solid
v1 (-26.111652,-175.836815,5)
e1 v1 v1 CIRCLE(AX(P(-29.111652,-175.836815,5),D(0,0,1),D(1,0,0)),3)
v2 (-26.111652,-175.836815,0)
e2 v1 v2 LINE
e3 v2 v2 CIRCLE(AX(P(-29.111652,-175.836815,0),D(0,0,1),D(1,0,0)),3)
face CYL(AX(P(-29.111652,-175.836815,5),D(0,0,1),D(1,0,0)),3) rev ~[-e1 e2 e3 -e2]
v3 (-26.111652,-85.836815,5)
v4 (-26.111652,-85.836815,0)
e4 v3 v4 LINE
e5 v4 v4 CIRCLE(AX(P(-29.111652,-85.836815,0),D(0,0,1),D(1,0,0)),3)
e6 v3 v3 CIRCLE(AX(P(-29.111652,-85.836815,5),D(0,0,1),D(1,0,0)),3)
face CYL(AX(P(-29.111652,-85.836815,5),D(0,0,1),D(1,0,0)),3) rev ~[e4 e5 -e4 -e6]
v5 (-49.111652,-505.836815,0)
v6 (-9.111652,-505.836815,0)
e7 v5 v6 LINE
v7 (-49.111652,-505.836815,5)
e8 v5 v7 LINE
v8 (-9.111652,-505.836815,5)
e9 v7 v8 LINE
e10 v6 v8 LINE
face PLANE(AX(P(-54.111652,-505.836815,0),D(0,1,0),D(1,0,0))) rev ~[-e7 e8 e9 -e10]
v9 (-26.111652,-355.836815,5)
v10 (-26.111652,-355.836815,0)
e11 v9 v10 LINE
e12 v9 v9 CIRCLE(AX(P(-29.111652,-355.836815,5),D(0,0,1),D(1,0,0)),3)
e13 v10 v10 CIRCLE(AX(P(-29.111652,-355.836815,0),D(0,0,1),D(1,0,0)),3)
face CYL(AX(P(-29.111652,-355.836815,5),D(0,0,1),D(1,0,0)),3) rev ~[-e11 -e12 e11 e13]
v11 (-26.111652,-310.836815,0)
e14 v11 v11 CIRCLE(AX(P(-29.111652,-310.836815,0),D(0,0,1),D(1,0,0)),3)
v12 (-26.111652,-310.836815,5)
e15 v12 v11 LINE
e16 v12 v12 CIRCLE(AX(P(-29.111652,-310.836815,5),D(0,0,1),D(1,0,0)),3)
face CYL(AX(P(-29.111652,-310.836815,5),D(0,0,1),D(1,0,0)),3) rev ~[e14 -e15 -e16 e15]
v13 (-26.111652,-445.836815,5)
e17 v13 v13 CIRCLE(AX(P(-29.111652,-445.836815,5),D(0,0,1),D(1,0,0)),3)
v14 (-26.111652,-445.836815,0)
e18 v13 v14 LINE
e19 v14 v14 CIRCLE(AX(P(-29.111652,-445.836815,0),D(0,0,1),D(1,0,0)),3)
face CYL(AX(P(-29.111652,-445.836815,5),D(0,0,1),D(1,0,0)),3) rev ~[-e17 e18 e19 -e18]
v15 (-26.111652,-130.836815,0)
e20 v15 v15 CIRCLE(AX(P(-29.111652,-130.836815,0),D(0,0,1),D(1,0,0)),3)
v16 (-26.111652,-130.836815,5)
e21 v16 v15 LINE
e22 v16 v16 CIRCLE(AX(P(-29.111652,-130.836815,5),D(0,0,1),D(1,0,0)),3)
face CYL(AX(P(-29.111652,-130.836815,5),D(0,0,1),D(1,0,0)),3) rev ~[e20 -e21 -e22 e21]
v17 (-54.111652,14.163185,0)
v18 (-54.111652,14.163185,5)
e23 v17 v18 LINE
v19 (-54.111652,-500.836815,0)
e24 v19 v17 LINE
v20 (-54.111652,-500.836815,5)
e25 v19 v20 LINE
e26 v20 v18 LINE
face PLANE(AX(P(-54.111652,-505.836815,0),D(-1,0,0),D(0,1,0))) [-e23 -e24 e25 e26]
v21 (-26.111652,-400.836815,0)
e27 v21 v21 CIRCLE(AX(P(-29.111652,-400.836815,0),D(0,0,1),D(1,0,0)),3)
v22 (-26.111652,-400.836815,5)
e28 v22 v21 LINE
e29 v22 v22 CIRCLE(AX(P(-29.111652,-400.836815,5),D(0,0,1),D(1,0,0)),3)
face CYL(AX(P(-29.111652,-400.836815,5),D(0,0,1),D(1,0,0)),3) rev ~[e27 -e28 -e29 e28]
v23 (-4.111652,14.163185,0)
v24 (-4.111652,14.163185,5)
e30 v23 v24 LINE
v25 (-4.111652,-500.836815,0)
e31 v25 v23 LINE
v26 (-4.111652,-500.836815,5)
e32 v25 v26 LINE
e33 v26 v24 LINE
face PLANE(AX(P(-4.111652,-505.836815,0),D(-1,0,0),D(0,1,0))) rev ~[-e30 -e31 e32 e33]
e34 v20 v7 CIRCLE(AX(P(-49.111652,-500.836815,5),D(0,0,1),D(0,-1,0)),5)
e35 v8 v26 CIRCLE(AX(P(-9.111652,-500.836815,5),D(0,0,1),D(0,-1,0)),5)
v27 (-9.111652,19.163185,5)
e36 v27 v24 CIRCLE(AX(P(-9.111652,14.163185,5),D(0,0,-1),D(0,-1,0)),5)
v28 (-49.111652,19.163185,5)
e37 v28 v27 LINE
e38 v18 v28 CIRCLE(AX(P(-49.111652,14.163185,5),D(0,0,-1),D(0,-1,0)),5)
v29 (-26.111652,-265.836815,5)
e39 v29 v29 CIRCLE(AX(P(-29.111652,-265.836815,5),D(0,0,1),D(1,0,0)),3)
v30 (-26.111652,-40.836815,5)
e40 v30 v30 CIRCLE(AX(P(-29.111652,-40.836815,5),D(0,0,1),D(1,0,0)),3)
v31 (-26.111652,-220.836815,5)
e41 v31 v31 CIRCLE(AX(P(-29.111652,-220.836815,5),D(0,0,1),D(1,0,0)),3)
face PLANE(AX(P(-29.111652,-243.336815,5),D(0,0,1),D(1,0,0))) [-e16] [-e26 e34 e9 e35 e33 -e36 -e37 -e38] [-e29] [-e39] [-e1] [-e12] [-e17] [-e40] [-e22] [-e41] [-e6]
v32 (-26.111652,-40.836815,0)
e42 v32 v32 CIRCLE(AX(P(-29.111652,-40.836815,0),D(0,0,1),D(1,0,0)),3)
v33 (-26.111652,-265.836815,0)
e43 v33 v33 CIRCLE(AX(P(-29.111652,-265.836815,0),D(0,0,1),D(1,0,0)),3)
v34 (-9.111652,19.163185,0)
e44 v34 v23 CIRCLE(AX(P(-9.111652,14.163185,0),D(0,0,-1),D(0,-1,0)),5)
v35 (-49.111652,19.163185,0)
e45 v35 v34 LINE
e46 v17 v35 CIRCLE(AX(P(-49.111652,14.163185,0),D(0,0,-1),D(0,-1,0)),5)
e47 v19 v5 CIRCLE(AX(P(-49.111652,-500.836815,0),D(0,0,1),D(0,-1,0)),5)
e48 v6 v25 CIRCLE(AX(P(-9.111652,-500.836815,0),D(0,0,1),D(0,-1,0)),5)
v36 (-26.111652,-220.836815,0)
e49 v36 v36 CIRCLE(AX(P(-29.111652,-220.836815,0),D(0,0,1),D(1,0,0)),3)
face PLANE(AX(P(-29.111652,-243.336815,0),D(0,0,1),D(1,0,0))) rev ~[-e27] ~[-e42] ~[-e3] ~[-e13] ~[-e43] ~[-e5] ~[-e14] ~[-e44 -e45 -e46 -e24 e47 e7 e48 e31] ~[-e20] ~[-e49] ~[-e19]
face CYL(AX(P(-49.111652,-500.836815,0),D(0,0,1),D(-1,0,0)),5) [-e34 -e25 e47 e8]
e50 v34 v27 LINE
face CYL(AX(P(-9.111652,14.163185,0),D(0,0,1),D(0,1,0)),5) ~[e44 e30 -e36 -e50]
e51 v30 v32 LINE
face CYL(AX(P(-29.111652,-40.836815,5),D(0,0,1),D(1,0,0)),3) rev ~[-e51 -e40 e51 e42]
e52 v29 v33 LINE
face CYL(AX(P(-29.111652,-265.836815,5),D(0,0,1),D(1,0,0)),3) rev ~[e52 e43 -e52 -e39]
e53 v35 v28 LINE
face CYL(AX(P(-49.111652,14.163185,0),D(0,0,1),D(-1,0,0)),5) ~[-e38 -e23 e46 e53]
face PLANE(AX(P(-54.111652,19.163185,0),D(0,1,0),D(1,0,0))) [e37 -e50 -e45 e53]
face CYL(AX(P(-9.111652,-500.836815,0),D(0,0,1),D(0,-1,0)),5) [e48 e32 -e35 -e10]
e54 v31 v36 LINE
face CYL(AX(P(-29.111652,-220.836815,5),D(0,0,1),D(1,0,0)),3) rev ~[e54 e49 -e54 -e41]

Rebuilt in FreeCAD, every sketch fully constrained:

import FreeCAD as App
import Part
import Sketcher

V = App.Vector


def edges_at(feature, points):
    """Names of the edges that pass closest to the given points."""
    edges = feature.Shape.Edges
    near = lambda p: min(range(len(edges)), key=lambda i: edges[i].distToShape(Part.Vertex(*p))[0])
    return sorted({f"Edge{near(p) + 1}" for p in points})

doc = App.newDocument("Part")
params = doc.addObject("Spreadsheet::Sheet", "Params")
for row, (alias, value) in enumerate([
    ("sketch1_width", "50 mm"),
    ("sketch1_height", "525 mm"),
    ("pad1_length", "5 mm"),
    ("sketch2_diameter", "6 mm"),
    ("pocket1_length", "5 mm"),
    ("linearpattern_pitch", "45 mm"),
    ("fillet_radius", "5 mm"),
], start=1):
    params.set(f"A{row}", alias)
    params.set(f"B{row}", "=" + value)
    params.setAlias(f"B{row}", alias)

body = doc.addObject("PartDesign::Body", "Body")

sketch1 = doc.addObject("Sketcher::SketchObject", "Sketch")
body.addObject(sketch1)
sketch1.AttachmentSupport = (doc.XY_Plane, [""])
sketch1.MapMode = "FlatFace"
sketch1.addGeometry(Part.LineSegment(V(-54, 19, 0), V(-54, -506, 0)), False)
sketch1.addGeometry(Part.LineSegment(V(-54, -506, 0), V(-4, -506, 0)), False)
sketch1.addGeometry(Part.LineSegment(V(-4, -506, 0), V(-4, 19, 0)), False)
sketch1.addGeometry(Part.LineSegment(V(-4, 19, 0), V(-54, 19, 0)), False)
sketch1.addConstraint(Sketcher.Constraint("Coincident", 0, 2, 1, 1))
sketch1.addConstraint(Sketcher.Constraint("Coincident", 1, 2, 2, 1))
sketch1.addConstraint(Sketcher.Constraint("Coincident", 2, 2, 3, 1))
sketch1.addConstraint(Sketcher.Constraint("Coincident", 3, 2, 0, 1))
sketch1.addConstraint(Sketcher.Constraint("Vertical", 0))
sketch1.addConstraint(Sketcher.Constraint("Horizontal", 1))
sketch1.addConstraint(Sketcher.Constraint("Vertical", 2))
sketch1.addConstraint(Sketcher.Constraint("Horizontal", 3))
sketch1.addConstraint(Sketcher.Constraint("DistanceX", 1, 1, 1, 2, 50.0))
sketch1.addConstraint(Sketcher.Constraint("DistanceY", 0, 2, 0, 1, 525.0))
sketch1.addConstraint(Sketcher.Constraint("DistanceX", 0, 2, -1, 1, 54.111652))
sketch1.addConstraint(Sketcher.Constraint("DistanceY", 0, 2, -1, 1, 505.836815))
sketch1.setExpression("Constraints[8]", "Params.sketch1_width")
sketch1.setExpression("Constraints[9]", "Params.sketch1_height")
pad1 = doc.addObject("PartDesign::Pad", "Pad")
body.addObject(pad1)
pad1.Profile = sketch1
pad1.setExpression("Length", "Params.pad1_length")

sketch2 = doc.addObject("Sketcher::SketchObject", "Sketch001")
body.addObject(sketch2)
sketch2.AttachmentSupport = (doc.XY_Plane, [""])
sketch2.MapMode = "FlatFace"
sketch2.AttachmentOffset = App.Placement(V(0, 0, 5), App.Rotation())
sketch2.addGeometry(Part.Circle(V(-29.1, -445.8, 0), V(0, 0, 1), 3), False)
sketch2.addConstraint(Sketcher.Constraint("Diameter", 0, 6.0))
sketch2.addConstraint(Sketcher.Constraint("DistanceX", 0, 3, -1, 1, 29.111652))
sketch2.addConstraint(Sketcher.Constraint("DistanceY", 0, 3, -1, 1, 445.836815))
sketch2.setExpression("Constraints[0]", "Params.sketch2_diameter")
pocket1 = doc.addObject("PartDesign::Pocket", "Pocket")
body.addObject(pocket1)
pocket1.Profile = sketch2
pocket1.setExpression("Length", "Params.pocket1_length")
doc.recompute()

linearpattern = doc.addObject("PartDesign::LinearPattern", "LinearPattern")
body.addObject(linearpattern)
linearpattern.Originals = [pocket1]
linearpattern.Direction = (doc.Y_Axis, [""])
linearpattern.Mode = "offset"
linearpattern.setExpression("Offset", "Params.linearpattern_pitch")
linearpattern.Occurrences = 10
body.Tip = linearpattern
doc.recompute()

fillet = doc.addObject("PartDesign::Fillet", "Fillet")
body.addObject(fillet)
fillet.Base = (linearpattern, edges_at(linearpattern, [
    (-4.112, 19.163, 2.5),
    (-54.112, 19.163, 2.5),
    (-4.112, -505.837, 2.5),
    (-54.112, -505.837, 2.5),
]))
fillet.setExpression("Radius", "Params.fillet_radius")

doc.recompute()
